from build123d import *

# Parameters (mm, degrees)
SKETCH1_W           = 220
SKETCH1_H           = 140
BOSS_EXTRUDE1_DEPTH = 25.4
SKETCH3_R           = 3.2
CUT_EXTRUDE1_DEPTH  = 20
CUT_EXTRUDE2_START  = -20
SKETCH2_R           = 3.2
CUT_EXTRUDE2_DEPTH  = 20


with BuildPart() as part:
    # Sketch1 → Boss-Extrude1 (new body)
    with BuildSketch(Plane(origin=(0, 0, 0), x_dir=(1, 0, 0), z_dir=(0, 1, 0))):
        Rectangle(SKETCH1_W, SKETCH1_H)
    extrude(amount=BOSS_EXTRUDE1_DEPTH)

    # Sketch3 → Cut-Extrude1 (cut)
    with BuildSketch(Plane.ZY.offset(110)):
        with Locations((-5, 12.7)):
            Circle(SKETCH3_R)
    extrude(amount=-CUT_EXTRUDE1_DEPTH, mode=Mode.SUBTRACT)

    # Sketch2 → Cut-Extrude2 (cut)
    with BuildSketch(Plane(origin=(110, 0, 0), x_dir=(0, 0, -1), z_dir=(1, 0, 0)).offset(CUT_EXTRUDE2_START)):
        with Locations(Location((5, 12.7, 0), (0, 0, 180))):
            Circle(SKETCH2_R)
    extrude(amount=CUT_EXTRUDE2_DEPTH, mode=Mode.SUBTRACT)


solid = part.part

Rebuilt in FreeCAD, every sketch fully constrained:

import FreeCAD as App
import Part
import Sketcher

doc = App.newDocument("Part")
body = doc.addObject("PartDesign::Body", "Body")

# Sketch on XZ plane
sketch1 = doc.addObject("Sketcher::SketchObject", "Sketch")
body.addObject(sketch1)
sketch1.AttachmentSupport = (doc.XZ_Plane, [""])
sketch1.MapMode = "FlatFace"
sketch1.addGeometry([
    Part.LineSegment(App.Vector(-110, -70, 0), App.Vector(-110, 70, 0)),
    Part.LineSegment(App.Vector(-110, 70, 0), App.Vector(110, 70, 0)),
    Part.LineSegment(App.Vector(110, 70, 0), App.Vector(110, -70, 0)),
    Part.LineSegment(App.Vector(110, -70, 0), App.Vector(-110, -70, 0)),
], False)
sketch1.addConstraint([
    Sketcher.Constraint("Coincident", 0, 2, 1, 1),
    Sketcher.Constraint("Coincident", 1, 2, 2, 1),
    Sketcher.Constraint("Coincident", 2, 2, 3, 1),
    Sketcher.Constraint("Coincident", 3, 2, 0, 1),
    Sketcher.Constraint("Vertical", 0),
    Sketcher.Constraint("Horizontal", 1),
    Sketcher.Constraint("Vertical", 2),
    Sketcher.Constraint("Horizontal", 3),
    Sketcher.Constraint("Symmetric", 0, 2, 2, 2, -1, 1),
    Sketcher.Constraint("DistanceX", 1, 1, 1, 2, 220.0),
    Sketcher.Constraint("DistanceY", 0, 1, 0, 2, 140.0),
])
pad1 = doc.addObject("PartDesign::Pad", "Pad")
body.addObject(pad1)
pad1.Profile = sketch1
pad1.Length = 25.4
pad1.Reversed = True

# Sketch on YZ plane
sketch2 = doc.addObject("Sketcher::SketchObject", "Sketch001")
body.addObject(sketch2)
sketch2.AttachmentSupport = (doc.YZ_Plane, [""])
sketch2.MapMode = "FlatFace"
sketch2.AttachmentOffset = App.Placement(App.Vector(0, 0, -110), App.Rotation())
sketch2.addGeometry(Part.Circle(App.Vector(12.7, -5, 0), App.Vector(0, 0, 1), 3.2), False)
sketch2.addConstraint([
    Sketcher.Constraint("Diameter", 0, 6.4),
    Sketcher.Constraint("DistanceY", 0, 3, -1, 1, 5.0),
    Sketcher.Constraint("DistanceX", -1, 1, 0, 3, 12.7),
])
pocket1 = doc.addObject("PartDesign::Pocket", "Pocket")
body.addObject(pocket1)
pocket1.Profile = sketch2
pocket1.Length = 20
pocket1.Reversed = True

# Sketch on YZ plane
sketch3 = doc.addObject("Sketcher::SketchObject", "Sketch002")
body.addObject(sketch3)
sketch3.AttachmentSupport = (doc.YZ_Plane, [""])
sketch3.MapMode = "FlatFace"
sketch3.AttachmentOffset = App.Placement(App.Vector(0, 0, 90), App.Rotation())
sketch3.addGeometry(Part.Circle(App.Vector(12.7, -5, 0), App.Vector(0, 0, 1), 3.2), False)
sketch3.addConstraint([
    Sketcher.Constraint("Diameter", 0, 6.4),
    Sketcher.Constraint("DistanceY", 0, 3, -1, 1, 5.0),
    Sketcher.Constraint("DistanceX", -1, 1, 0, 3, 12.7),
])
pocket2 = doc.addObject("PartDesign::Pocket", "Pocket001")
body.addObject(pocket2)
pocket2.Profile = sketch3
pocket2.Length = 20
pocket2.Reversed = True

doc.recompute()
